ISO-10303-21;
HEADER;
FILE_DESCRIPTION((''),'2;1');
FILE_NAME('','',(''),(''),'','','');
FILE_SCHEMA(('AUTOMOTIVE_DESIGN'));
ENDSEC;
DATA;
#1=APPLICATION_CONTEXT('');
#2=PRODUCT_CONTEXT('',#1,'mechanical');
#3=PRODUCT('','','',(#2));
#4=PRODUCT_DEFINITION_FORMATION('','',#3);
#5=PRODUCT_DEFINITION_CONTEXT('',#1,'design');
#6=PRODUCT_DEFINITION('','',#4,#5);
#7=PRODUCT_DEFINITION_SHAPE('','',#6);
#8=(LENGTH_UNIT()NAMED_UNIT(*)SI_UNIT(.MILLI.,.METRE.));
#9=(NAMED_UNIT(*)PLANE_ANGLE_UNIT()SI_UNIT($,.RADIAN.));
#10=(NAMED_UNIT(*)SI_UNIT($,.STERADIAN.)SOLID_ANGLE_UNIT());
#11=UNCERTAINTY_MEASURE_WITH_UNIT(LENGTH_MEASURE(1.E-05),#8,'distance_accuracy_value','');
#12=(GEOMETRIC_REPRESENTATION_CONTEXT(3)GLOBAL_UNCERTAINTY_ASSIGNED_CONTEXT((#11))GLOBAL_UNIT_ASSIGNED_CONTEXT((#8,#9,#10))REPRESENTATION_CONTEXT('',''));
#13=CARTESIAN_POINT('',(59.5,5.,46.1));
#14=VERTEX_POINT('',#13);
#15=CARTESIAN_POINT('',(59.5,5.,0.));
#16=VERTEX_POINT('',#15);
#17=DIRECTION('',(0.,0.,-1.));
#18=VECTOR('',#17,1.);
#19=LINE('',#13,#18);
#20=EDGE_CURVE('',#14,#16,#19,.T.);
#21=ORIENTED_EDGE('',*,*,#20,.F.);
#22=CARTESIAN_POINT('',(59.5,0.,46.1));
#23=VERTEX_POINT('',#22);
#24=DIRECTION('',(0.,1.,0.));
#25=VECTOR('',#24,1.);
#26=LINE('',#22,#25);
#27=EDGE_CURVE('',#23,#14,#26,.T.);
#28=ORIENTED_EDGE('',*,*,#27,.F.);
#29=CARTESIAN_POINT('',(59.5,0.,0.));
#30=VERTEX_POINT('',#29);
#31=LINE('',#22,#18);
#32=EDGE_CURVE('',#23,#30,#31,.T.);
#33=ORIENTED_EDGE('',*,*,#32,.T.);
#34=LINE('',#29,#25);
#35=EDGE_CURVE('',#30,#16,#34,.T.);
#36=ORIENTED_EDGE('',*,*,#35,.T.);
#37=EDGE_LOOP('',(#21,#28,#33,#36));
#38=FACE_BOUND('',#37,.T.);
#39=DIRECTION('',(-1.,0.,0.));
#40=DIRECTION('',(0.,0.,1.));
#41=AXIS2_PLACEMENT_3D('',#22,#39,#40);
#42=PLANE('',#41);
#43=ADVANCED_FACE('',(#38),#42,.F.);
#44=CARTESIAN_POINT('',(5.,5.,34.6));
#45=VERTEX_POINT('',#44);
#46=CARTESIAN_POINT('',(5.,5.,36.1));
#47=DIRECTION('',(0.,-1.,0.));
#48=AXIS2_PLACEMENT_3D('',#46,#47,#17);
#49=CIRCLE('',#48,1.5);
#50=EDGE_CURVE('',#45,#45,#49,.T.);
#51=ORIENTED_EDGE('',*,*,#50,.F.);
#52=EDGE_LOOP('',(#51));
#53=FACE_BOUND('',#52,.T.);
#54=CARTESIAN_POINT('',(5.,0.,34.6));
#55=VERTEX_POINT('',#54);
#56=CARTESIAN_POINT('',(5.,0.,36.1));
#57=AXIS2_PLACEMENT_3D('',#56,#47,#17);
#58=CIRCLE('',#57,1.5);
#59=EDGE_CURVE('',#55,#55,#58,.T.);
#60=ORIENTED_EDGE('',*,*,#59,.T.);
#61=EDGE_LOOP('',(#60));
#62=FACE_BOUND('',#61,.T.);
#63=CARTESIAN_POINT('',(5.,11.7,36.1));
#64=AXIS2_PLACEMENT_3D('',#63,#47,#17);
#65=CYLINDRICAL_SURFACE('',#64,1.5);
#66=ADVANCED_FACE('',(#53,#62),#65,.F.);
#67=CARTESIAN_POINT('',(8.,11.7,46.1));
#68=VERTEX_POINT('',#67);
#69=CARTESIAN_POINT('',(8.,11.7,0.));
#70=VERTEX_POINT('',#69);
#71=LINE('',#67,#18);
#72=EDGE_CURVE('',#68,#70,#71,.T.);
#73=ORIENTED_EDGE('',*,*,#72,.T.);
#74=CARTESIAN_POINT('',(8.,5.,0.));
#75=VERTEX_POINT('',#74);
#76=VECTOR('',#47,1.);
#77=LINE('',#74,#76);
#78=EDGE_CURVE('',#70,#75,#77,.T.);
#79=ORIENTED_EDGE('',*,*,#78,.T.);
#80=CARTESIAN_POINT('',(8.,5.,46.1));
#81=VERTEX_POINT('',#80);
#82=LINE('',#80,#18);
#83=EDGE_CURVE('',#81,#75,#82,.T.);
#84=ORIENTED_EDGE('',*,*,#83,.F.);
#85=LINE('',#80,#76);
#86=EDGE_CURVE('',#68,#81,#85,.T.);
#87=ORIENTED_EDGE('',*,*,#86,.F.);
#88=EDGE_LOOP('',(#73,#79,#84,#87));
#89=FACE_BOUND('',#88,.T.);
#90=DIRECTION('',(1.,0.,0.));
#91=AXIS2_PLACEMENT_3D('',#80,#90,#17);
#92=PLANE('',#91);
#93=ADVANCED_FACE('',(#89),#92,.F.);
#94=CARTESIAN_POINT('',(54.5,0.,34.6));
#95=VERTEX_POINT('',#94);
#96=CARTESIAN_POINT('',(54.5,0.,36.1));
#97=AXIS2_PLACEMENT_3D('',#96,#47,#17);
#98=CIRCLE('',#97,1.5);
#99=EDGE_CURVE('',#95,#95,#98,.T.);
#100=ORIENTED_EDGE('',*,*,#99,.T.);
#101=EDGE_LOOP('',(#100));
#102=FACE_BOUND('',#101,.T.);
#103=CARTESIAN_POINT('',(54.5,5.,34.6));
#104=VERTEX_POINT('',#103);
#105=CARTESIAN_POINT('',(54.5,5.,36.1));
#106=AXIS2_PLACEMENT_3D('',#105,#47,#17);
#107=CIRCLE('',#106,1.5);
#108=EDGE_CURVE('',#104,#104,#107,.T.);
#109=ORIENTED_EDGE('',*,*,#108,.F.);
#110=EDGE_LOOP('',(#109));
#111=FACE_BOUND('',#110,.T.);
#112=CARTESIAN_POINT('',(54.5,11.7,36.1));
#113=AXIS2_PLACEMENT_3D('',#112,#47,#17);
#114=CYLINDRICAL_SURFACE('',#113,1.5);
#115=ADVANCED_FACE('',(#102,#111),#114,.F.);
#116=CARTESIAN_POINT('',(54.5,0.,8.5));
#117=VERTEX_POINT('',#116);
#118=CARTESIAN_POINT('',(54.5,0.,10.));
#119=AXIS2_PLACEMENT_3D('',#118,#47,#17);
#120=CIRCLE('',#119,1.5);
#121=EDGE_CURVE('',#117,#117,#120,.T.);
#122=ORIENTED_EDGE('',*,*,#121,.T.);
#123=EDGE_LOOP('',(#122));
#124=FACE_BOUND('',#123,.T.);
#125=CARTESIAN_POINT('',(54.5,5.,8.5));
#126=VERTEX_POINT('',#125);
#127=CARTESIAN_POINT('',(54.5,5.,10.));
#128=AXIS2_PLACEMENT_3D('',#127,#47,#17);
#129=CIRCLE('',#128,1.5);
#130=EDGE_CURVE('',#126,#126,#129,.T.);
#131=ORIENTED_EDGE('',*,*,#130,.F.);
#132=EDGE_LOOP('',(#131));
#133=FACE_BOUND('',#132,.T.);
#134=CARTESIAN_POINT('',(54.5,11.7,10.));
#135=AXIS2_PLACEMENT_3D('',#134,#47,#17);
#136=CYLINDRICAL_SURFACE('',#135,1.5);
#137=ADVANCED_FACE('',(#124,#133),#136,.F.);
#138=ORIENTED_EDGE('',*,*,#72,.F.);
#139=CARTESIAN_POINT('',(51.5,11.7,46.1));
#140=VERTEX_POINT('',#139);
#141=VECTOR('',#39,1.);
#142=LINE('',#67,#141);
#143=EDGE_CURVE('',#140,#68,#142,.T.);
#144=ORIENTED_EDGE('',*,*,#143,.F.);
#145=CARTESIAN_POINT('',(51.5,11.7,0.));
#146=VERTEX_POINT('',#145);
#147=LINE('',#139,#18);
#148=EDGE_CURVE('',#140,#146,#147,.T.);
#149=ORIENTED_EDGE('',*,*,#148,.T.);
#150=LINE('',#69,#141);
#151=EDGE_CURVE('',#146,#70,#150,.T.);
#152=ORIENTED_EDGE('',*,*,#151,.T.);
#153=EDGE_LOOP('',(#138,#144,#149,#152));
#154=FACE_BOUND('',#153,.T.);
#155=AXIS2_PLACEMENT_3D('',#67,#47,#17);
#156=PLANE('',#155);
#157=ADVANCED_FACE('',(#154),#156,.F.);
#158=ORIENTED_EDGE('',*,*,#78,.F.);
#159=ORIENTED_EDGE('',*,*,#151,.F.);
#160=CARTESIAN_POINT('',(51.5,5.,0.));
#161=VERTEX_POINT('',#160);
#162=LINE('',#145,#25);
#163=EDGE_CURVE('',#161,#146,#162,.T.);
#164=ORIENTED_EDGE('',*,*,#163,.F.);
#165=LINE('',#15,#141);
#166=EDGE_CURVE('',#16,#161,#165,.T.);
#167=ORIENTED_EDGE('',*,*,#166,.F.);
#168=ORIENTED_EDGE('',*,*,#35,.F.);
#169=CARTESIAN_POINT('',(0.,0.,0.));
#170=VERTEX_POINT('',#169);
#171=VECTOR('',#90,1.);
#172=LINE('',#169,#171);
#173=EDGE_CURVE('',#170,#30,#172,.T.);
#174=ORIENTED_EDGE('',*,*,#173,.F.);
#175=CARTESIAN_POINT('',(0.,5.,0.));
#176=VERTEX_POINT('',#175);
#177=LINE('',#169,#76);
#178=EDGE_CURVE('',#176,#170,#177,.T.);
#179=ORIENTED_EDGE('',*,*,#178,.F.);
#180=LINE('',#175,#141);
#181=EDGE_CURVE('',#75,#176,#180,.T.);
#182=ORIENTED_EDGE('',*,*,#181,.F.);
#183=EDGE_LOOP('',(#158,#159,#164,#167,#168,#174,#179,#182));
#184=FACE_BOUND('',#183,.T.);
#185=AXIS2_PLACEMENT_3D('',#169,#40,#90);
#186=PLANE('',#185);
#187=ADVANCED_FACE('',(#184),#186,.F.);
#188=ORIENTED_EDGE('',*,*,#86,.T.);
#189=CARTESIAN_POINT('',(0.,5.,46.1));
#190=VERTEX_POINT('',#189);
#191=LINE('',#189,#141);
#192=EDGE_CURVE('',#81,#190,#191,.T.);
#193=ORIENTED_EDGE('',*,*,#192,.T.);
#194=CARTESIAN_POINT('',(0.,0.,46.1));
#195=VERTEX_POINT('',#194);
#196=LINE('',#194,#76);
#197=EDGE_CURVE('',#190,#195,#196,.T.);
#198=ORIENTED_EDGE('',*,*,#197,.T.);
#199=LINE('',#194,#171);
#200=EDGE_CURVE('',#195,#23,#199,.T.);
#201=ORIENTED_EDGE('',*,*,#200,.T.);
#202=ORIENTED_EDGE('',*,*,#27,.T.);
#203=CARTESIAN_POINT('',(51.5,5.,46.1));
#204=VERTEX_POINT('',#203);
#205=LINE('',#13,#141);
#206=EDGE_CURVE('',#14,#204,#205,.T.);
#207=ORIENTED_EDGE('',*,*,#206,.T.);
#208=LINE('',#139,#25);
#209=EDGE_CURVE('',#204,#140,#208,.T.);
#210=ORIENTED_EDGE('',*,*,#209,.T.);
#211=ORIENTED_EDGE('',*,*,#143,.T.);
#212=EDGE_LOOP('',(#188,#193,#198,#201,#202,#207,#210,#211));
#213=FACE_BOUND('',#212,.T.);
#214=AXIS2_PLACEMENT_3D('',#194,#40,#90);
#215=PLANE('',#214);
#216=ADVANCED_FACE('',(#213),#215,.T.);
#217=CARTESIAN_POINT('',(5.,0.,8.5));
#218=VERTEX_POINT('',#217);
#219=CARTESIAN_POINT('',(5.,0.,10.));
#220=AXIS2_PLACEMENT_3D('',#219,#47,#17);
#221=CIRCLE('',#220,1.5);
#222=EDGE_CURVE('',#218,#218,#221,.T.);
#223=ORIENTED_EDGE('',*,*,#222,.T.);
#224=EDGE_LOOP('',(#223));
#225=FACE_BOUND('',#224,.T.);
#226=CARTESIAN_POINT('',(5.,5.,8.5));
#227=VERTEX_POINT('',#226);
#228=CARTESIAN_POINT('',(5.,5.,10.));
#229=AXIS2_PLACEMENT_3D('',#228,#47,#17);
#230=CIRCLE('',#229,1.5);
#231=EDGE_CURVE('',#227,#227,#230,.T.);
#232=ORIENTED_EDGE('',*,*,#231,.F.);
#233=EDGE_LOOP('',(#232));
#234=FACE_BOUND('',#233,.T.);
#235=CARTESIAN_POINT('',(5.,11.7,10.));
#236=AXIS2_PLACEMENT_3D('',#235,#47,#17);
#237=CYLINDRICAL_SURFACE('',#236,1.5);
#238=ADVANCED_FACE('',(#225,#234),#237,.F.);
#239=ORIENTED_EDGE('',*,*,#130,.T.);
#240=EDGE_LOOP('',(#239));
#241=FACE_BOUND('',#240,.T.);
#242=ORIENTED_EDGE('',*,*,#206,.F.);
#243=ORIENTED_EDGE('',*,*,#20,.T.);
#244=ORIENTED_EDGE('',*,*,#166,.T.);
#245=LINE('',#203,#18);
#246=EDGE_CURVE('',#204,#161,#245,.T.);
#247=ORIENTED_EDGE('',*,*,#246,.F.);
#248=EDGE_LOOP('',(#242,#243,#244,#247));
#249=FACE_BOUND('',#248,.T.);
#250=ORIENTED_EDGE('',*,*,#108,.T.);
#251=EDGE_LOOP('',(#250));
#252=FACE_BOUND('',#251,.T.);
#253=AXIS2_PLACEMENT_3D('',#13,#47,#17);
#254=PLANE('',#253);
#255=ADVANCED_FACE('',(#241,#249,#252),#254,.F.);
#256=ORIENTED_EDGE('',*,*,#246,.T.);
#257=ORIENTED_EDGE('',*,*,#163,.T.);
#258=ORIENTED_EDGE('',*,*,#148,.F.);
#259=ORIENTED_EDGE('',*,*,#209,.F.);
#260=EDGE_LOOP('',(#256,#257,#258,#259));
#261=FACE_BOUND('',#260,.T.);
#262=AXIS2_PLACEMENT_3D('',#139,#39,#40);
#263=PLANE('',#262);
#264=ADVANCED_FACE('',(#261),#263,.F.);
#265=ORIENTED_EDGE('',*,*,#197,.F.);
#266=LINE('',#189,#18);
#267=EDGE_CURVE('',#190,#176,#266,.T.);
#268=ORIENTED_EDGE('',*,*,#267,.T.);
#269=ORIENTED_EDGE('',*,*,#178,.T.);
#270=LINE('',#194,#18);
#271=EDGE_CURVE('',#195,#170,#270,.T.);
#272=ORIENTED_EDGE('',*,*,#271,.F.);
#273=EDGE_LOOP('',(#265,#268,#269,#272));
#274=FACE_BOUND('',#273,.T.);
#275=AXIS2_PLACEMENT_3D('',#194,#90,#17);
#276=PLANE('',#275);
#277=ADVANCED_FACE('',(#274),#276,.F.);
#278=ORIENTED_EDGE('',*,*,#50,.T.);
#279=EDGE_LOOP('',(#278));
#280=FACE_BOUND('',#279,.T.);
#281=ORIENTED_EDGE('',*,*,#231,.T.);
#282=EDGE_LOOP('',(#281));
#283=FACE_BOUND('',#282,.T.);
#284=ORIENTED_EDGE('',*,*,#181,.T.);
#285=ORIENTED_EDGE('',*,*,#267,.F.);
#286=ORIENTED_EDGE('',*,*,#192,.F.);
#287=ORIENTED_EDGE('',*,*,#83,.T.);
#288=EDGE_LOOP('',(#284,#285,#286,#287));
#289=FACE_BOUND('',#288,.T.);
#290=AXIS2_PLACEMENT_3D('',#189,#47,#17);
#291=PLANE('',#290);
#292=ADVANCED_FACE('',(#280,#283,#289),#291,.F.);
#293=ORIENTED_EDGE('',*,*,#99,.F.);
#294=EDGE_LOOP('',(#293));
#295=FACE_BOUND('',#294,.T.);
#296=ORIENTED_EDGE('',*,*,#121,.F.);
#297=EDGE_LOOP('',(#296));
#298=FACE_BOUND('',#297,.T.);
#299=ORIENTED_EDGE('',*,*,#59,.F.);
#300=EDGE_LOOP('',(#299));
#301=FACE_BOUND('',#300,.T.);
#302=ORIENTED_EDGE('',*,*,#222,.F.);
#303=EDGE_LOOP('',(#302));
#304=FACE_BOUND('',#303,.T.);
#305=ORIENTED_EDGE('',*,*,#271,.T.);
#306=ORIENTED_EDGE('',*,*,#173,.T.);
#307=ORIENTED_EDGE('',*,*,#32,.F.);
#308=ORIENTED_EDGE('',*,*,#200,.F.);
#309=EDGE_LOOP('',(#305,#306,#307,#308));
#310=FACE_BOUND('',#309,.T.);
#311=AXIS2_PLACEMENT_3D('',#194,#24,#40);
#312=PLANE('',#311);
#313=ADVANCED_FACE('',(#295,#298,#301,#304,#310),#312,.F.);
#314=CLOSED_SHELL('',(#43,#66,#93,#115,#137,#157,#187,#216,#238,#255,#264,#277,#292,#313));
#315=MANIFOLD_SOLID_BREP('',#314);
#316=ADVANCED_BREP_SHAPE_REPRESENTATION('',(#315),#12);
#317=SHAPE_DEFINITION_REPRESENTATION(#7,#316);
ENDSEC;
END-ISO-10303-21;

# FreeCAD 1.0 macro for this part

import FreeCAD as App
import Part
import Sketcher

V = App.Vector


def add_polygon(sketch, points):
    """Adds a closed chain of lines whose ends are joined by coincident constraints."""
    first, n = sketch.GeometryCount, len(points)
    for a, b in zip(points, points[1:] + points[:1]):
        sketch.addGeometry(Part.LineSegment(App.Vector(*a, 0), App.Vector(*b, 0)), False)
    for i in range(n):
        sketch.addConstraint(Sketcher.Constraint("Coincident", first + i, 2, first + (i + 1) % n, 1))

doc = App.newDocument("Part")
body = doc.addObject("PartDesign::Body", "Body")

# Sketch on XY plane
sketch1 = doc.addObject("Sketcher::SketchObject", "Sketch")
body.addObject(sketch1)
sketch1.AttachmentSupport = (doc.XY_Plane, [""])
sketch1.MapMode = "FlatFace"
add_polygon(sketch1, [(0, 5), (0, 0), (59.5, 0), (59.5, 5), (51.5, 5), (51.5, 11.7), (8, 11.7), (8, 5)])  # lines 0-7
sketch1.addConstraint(Sketcher.Constraint("Vertical", 0))
sketch1.addConstraint(Sketcher.Constraint("Horizontal", 1))
sketch1.addConstraint(Sketcher.Constraint("Vertical", 2))
sketch1.addConstraint(Sketcher.Constraint("Horizontal", 3))
sketch1.addConstraint(Sketcher.Constraint("Vertical", 4))
sketch1.addConstraint(Sketcher.Constraint("Horizontal", 5))
sketch1.addConstraint(Sketcher.Constraint("Vertical", 6))
sketch1.addConstraint(Sketcher.Constraint("Horizontal", 7))
sketch1.addConstraint(Sketcher.Constraint("Coincident", 0, 2, -1, 1))
sketch1.addConstraint(Sketcher.Constraint("Horizontal", 3, 2, 6, 2))
sketch1.addConstraint(Sketcher.Constraint("Equal", 3, 7))
sketch1.addConstraint(Sketcher.Constraint("DistanceX", 3, 2, 3, 1, 8.0))
sketch1.addConstraint(Sketcher.Constraint("DistanceY", 0, 2, 0, 1, 5.0))
sketch1.addConstraint(Sketcher.Constraint("DistanceX", 1, 1, 1, 2, 59.5))
sketch1.addConstraint(Sketcher.Constraint("DistanceY", 4, 1, 4, 2, 6.7))
pad1 = doc.addObject("PartDesign::Pad", "Pad")
body.addObject(pad1)
pad1.Profile = sketch1
pad1.Length = 46.1

# Sketch on XZ plane
sketch2 = doc.addObject("Sketcher::SketchObject", "Sketch001")
body.addObject(sketch2)
sketch2.AttachmentSupport = (doc.XZ_Plane, [""])
sketch2.MapMode = "FlatFace"
sketch2.addGeometry(Part.Circle(V(5, 36.1, 0), V(0, 0, 1), 1.5), False)
sketch2.addGeometry(Part.Circle(V(5, 10, 0), V(0, 0, 1), 1.5), False)
sketch2.addGeometry(Part.Circle(V(54.5, 36.1, 0), V(0, 0, 1), 1.5), False)
sketch2.addGeometry(Part.Circle(V(54.5, 10, 0), V(0, 0, 1), 1.5), False)
sketch2.addConstraint(Sketcher.Constraint("Equal", 0, 1))
sketch2.addConstraint(Sketcher.Constraint("Equal", 1, 2))
sketch2.addConstraint(Sketcher.Constraint("Equal", 2, 3))
sketch2.addConstraint(Sketcher.Constraint("Horizontal", 0, 3, 2, 3))
sketch2.addConstraint(Sketcher.Constraint("Horizontal", 1, 3, 3, 3))
sketch2.addConstraint(Sketcher.Constraint("Vertical", 0, 3, 1, 3))
sketch2.addConstraint(Sketcher.Constraint("Vertical", 2, 3, 3, 3))
sketch2.addConstraint(Sketcher.Constraint("Diameter", 0, 3.0))
sketch2.addConstraint(Sketcher.Constraint("DistanceX", -1, 1, 0, 3, 5.0))
sketch2.addConstraint(Sketcher.Constraint("DistanceY", -1, 1, 1, 3, 10.0))
sketch2.addConstraint(Sketcher.Constraint("DistanceY", -1, 1, 0, 3, 36.1))
sketch2.addConstraint(Sketcher.Constraint("DistanceX", -1, 1, 2, 3, 54.5))
pocket1 = doc.addObject("PartDesign::Pocket", "Pocket")
body.addObject(pocket1)
pocket1.Profile = sketch2
pocket1.Type = "ThroughAll"

doc.recompute()
